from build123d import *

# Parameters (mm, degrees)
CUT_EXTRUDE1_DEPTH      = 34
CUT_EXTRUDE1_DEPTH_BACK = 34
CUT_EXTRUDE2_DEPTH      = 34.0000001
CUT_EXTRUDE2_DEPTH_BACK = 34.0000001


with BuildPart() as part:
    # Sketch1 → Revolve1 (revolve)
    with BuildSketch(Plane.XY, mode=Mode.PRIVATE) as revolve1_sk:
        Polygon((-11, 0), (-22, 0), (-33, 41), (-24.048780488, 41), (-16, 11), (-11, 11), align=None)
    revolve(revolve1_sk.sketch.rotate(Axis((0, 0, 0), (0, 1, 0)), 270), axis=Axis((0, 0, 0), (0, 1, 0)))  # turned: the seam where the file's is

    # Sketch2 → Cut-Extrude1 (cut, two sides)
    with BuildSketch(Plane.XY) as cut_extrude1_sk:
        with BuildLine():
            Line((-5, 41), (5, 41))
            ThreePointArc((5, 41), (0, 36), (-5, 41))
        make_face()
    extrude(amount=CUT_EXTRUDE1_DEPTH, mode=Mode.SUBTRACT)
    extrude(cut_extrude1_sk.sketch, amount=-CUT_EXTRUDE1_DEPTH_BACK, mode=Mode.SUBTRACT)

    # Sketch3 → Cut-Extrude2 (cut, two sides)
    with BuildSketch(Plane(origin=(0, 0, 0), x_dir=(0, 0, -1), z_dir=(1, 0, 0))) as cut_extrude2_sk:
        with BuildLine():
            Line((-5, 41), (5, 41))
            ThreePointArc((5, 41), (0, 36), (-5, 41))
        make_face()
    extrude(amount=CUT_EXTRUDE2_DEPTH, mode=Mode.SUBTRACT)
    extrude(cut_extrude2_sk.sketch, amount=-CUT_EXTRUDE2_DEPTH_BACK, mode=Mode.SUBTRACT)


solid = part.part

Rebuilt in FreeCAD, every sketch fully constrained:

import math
import FreeCAD as App
import Part
import Sketcher
from FreeCAD import Vector
Q = App.Units.Quantity

doc = App.newDocument("Part")
body = doc.addObject("PartDesign::Body", "Body")

# Sketch on XY plane
sketch1 = body.newObject("Sketcher::SketchObject", "Sketch")
sketch1.AttachmentSupport = (doc.getObject("XY_Plane"), [""])
sketch1.MapMode = "FlatFace"
sketch1.addGeometry(Part.LineSegment(Vector(-22, 0, 0), Vector(-11, 0, 0)), False)
sketch1.addGeometry(Part.LineSegment(Vector(-11, 0, 0), Vector(-11, 11, 0)), False)
sketch1.addGeometry(Part.LineSegment(Vector(-11, 11, 0), Vector(-16, 11, 0)), False)
sketch1.addGeometry(Part.LineSegment(Vector(-16, 11, 0), Vector(-24.04878, 41, 0)), False)
sketch1.addGeometry(Part.LineSegment(Vector(-24.04878, 41, 0), Vector(-33, 41, 0)), False)
sketch1.addGeometry(Part.LineSegment(Vector(-33, 41, 0), Vector(-22, 0, 0)), False)
sketch1.addConstraint(Sketcher.Constraint("Coincident", 0, 2, 1, 1))
sketch1.addConstraint(Sketcher.Constraint("Coincident", 1, 2, 2, 1))
sketch1.addConstraint(Sketcher.Constraint("Coincident", 2, 2, 3, 1))
sketch1.addConstraint(Sketcher.Constraint("Coincident", 3, 2, 4, 1))
sketch1.addConstraint(Sketcher.Constraint("Coincident", 4, 2, 5, 1))
sketch1.addConstraint(Sketcher.Constraint("Coincident", 5, 2, 0, 1))
sketch1.addConstraint(Sketcher.Constraint("Horizontal", 0))
sketch1.addConstraint(Sketcher.Constraint("Vertical", 1))
sketch1.addConstraint(Sketcher.Constraint("Horizontal", 2))
sketch1.addConstraint(Sketcher.Constraint("Horizontal", 4))
sketch1.addConstraint(Sketcher.Constraint("PointOnObject", 0, 2, -1))
sketch1.addConstraint(Sketcher.Constraint("Parallel", 3, 5))
sketch1.addConstraint(Sketcher.Constraint("Equal", 0, 1))
sketch1.addConstraint(Sketcher.Constraint("DistanceX", 0, 1, 0, 2, Q("11 mm")))
sketch1.addConstraint(Sketcher.Constraint("DistanceX", 2, 2, 2, 1, Q("5 mm")))
sketch1.addConstraint(Sketcher.Constraint("DistanceX", 0, 2, -1, 1, Q("11 mm")))
sketch1.addConstraint(Sketcher.Constraint("DistanceY", -1, 1, 3, 2, Q("41 mm")))
sketch1.addConstraint(Sketcher.Constraint("DistanceX", 4, 2, -1, 1, Q("33 mm")))
revolution = body.newObject("PartDesign::Revolution", "Revolution")
revolution.Profile = sketch1
revolution.ReferenceAxis = (sketch1, ["V_Axis"])
revolution.Angle = 360

# Sketch on XY plane
sketch2 = body.newObject("Sketcher::SketchObject", "Sketch001")
sketch2.AttachmentSupport = (doc.getObject("XY_Plane"), [""])
sketch2.MapMode = "FlatFace"
sketch2.addGeometry(Part.LineSegment(Vector(5, 41, 0), Vector(-5, 41, 0)), False)
sketch2.addGeometry(Part.ArcOfCircle(Part.Circle(Vector(0, 41, 0), Vector(0, 0, 1), 5), math.radians(180), math.radians(360)), False)
sketch2.addConstraint(Sketcher.Constraint("Coincident", 0, 1, 1, 2))
sketch2.addConstraint(Sketcher.Constraint("Coincident", 1, 1, 0, 2))
sketch2.addConstraint(Sketcher.Constraint("Horizontal", 0))
sketch2.addConstraint(Sketcher.Constraint("PointOnObject", 1, 3, -2))
sketch2.addConstraint(Sketcher.Constraint("Horizontal", 1, 3, 0, 1))
sketch2.addConstraint(Sketcher.Constraint("Radius", 1, Q("5 mm")))
sketch2.addConstraint(Sketcher.Constraint("DistanceY", -1, 1, 1, 3, Q("41 mm")))
pocket1 = body.newObject("PartDesign::Pocket", "Pocket")
pocket1.Profile = sketch2
pocket1.Type = "ThroughAll"
pocket1.Midplane = True

# Sketch on YZ plane
sketch3 = body.newObject("Sketcher::SketchObject", "Sketch002")
sketch3.AttachmentSupport = (doc.getObject("YZ_Plane"), [""])
sketch3.MapMode = "FlatFace"
sketch3.addGeometry(Part.LineSegment(Vector(41, -5, 0), Vector(41, 5, 0)), False)
sketch3.addGeometry(Part.ArcOfCircle(Part.Circle(Vector(41, 0, 0), Vector(0, 0, 1), 5), math.radians(90), math.radians(270)), False)
sketch3.addConstraint(Sketcher.Constraint("Coincident", 0, 1, 1, 2))
sketch3.addConstraint(Sketcher.Constraint("Coincident", 1, 1, 0, 2))
sketch3.addConstraint(Sketcher.Constraint("Vertical", 0))
sketch3.addConstraint(Sketcher.Constraint("PointOnObject", 1, 3, -1))
sketch3.addConstraint(Sketcher.Constraint("Vertical", 1, 3, 0, 1))
sketch3.addConstraint(Sketcher.Constraint("Radius", 1, Q("5 mm")))
sketch3.addConstraint(Sketcher.Constraint("DistanceX", -1, 1, 1, 3, Q("41 mm")))
pocket2 = body.newObject("PartDesign::Pocket", "Pocket001")
pocket2.Profile = sketch3
pocket2.Type = "ThroughAll"
pocket2.Midplane = True

doc.recompute()
